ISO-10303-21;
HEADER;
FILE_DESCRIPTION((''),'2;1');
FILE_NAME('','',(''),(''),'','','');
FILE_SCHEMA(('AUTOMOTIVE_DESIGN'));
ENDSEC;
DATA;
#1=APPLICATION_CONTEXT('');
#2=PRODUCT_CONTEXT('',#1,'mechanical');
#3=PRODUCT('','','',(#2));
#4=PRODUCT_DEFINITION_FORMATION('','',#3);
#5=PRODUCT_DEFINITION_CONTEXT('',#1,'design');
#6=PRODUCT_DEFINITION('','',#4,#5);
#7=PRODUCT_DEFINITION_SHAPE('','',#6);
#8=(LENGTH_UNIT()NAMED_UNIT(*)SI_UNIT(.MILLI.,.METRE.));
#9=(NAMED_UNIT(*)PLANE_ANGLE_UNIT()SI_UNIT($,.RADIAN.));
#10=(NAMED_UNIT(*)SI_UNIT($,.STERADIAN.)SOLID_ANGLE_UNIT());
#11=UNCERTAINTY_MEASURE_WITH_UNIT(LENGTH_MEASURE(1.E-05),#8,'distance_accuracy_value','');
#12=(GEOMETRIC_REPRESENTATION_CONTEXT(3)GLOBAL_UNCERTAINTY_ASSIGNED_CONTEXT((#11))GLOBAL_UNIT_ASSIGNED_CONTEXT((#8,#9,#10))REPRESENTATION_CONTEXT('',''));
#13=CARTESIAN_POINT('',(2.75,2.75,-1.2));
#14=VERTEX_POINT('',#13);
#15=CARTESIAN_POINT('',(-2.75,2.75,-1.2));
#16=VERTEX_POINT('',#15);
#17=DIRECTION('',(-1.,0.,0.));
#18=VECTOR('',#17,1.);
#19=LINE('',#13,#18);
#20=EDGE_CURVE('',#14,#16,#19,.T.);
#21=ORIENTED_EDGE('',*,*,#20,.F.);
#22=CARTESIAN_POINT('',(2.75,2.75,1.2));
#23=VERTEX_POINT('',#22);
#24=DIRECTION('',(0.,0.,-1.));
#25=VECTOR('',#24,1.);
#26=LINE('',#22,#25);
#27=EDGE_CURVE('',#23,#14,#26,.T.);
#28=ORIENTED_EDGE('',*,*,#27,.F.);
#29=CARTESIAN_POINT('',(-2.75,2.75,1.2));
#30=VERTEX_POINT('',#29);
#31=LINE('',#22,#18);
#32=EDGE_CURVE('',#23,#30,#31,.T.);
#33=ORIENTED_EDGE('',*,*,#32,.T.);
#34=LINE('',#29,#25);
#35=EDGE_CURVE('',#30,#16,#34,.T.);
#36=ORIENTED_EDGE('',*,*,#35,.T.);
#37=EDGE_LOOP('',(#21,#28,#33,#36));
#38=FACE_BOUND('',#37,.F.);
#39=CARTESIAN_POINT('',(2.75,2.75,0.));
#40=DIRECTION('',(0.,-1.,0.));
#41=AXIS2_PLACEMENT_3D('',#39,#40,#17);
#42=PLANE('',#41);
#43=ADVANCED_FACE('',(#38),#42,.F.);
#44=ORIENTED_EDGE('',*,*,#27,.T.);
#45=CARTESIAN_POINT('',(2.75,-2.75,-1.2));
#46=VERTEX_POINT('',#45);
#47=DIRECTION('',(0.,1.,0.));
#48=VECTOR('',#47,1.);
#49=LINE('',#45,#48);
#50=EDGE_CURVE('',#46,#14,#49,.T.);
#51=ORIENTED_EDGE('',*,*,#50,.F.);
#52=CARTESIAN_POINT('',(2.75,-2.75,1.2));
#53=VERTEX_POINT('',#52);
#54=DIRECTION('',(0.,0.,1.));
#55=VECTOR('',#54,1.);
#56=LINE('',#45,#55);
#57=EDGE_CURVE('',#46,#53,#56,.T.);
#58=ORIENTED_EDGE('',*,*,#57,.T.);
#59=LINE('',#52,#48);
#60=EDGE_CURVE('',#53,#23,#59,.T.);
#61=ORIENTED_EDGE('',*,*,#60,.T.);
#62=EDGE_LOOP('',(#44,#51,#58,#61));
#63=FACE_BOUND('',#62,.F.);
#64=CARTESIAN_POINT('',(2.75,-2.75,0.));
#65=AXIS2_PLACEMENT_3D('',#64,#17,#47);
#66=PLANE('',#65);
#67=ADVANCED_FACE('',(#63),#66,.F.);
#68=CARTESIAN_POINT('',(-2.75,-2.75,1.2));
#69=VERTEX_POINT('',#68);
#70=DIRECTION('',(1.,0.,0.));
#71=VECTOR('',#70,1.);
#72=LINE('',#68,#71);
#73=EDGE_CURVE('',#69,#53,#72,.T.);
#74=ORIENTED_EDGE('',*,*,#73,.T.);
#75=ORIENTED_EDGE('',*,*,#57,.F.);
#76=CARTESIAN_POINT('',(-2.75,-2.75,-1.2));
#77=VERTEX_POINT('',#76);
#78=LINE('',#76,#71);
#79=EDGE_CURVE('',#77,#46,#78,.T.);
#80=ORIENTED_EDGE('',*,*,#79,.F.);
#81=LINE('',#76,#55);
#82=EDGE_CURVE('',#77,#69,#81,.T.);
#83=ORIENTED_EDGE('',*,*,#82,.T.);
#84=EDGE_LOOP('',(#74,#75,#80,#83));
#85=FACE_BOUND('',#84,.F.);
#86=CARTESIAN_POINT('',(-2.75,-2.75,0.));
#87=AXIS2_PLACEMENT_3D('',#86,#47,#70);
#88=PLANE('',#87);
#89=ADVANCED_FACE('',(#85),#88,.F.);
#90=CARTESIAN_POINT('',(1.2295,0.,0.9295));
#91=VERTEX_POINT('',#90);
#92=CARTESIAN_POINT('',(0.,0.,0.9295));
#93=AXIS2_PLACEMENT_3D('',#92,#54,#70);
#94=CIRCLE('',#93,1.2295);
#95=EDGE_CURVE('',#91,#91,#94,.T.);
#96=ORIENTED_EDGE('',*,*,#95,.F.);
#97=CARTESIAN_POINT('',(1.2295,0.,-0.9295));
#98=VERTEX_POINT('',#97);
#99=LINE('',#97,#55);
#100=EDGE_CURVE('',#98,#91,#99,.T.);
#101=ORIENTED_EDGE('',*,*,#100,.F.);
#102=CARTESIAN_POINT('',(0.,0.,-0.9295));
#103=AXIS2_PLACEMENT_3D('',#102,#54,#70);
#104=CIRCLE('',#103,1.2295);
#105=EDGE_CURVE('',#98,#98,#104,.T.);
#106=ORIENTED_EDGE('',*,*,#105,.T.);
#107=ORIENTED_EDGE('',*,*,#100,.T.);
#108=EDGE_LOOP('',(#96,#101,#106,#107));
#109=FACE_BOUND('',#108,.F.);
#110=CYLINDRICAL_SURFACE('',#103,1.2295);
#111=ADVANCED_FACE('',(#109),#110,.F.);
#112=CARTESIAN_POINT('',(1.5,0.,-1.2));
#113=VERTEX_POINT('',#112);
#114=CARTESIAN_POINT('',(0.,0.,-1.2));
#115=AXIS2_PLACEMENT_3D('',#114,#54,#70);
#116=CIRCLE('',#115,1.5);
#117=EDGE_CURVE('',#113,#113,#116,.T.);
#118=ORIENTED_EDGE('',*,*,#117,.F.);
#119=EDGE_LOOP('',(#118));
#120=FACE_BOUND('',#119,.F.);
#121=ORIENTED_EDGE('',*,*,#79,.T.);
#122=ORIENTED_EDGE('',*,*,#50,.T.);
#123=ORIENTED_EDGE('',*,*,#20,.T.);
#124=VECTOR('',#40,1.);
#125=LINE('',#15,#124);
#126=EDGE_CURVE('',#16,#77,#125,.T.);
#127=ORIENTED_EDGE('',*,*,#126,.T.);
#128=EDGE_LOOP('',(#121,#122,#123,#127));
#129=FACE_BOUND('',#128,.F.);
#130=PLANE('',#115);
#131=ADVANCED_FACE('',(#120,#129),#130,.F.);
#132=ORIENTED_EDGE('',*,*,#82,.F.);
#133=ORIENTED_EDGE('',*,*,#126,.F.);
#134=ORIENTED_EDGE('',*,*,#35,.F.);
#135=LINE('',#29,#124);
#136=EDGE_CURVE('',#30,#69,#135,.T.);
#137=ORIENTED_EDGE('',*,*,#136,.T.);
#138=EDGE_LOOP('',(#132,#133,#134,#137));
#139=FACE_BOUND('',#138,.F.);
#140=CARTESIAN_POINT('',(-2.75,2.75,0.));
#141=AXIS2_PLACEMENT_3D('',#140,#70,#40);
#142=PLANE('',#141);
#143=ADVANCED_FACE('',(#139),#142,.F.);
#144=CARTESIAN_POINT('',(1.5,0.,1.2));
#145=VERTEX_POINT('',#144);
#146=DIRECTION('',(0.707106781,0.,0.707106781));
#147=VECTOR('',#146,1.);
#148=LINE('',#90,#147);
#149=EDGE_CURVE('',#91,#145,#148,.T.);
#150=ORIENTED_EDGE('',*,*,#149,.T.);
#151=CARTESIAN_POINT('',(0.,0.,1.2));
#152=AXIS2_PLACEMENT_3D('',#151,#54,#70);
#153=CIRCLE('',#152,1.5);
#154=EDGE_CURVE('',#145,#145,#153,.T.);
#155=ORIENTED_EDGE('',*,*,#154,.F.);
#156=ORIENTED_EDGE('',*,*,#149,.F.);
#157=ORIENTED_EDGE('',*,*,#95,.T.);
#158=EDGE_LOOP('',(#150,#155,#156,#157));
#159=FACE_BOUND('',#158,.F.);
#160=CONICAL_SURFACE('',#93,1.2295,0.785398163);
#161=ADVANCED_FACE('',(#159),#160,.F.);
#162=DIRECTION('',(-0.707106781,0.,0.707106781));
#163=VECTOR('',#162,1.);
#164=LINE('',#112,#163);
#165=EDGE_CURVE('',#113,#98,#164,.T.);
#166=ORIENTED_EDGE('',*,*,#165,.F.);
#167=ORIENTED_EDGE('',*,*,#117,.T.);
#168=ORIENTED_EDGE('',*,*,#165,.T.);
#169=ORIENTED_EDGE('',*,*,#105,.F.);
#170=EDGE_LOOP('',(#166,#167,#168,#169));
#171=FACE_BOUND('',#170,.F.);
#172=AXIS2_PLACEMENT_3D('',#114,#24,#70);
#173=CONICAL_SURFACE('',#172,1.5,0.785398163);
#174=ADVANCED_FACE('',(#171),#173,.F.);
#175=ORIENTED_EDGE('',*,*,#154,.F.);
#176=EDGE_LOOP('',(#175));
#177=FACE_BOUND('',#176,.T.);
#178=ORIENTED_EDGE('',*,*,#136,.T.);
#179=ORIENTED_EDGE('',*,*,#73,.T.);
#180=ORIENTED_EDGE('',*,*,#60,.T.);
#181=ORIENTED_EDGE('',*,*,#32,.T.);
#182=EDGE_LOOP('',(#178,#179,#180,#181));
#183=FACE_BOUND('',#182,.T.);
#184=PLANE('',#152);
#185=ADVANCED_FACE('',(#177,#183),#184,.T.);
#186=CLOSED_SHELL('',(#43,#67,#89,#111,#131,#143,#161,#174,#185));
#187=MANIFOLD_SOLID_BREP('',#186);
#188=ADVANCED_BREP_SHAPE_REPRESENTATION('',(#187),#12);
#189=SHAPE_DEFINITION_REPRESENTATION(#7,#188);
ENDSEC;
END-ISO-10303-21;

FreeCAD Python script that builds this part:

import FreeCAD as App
import Part
import Sketcher
from FreeCAD import Vector

doc = App.newDocument("Part")
body = doc.addObject("PartDesign::Body", "Body")

# Sketch on XY plane
sketch1 = body.newObject("Sketcher::SketchObject", "Sketch")
sketch1.AttachmentSupport = (doc.getObject("XY_Plane"), [""])
sketch1.MapMode = "FlatFace"
sketch1.addGeometry([
    Part.LineSegment(Vector(-2.75, 2.75, 0), Vector(-2.75, -2.75, 0)),
    Part.LineSegment(Vector(-2.75, -2.75, 0), Vector(2.75, -2.75, 0)),
    Part.LineSegment(Vector(2.75, -2.75, 0), Vector(2.75, 2.75, 0)),
    Part.LineSegment(Vector(2.75, 2.75, 0), Vector(-2.75, 2.75, 0)),
], False)
sketch1.addConstraint([
    Sketcher.Constraint("Coincident", 0, 2, 1, 1),
    Sketcher.Constraint("Coincident", 1, 2, 2, 1),
    Sketcher.Constraint("Coincident", 2, 2, 3, 1),
    Sketcher.Constraint("Coincident", 3, 2, 0, 1),
    Sketcher.Constraint("Vertical", 0),
    Sketcher.Constraint("Horizontal", 1),
    Sketcher.Constraint("Vertical", 2),
    Sketcher.Constraint("Horizontal", 3),
    Sketcher.Constraint("Symmetric", 0, 2, 2, 2, -1, 1),
    Sketcher.Constraint("Equal", 3, 0),
    Sketcher.Constraint("DistanceX", 1, 1, 1, 2, 5.5),
])
pad1 = body.newObject("PartDesign::Pad", "Pad")
pad1.Profile = sketch1
pad1.Length = 2.4
pad1.Midplane = True

# Sketch on XZ plane
sketch2 = body.newObject("Sketcher::SketchObject", "Sketch001")
sketch2.AttachmentSupport = (doc.getObject("XZ_Plane"), [""])
sketch2.MapMode = "FlatFace"
sketch2.addGeometry([
    Part.LineSegment(Vector(0, -1.2, 0), Vector(0, 1.2, 0)),  # 0
    Part.LineSegment(Vector(0, 1.2, 0), Vector(1.5, 1.2, 0)),  # 1
    Part.LineSegment(Vector(1.5, 1.2, 0), Vector(1.2295, 0.9295, 0)),  # 2
    Part.LineSegment(Vector(1.2295, 0.9295, 0), Vector(1.2295, -0.9295, 0)),  # 3
    Part.LineSegment(Vector(1.2295, -0.9295, 0), Vector(1.5, -1.2, 0)),  # 4
    Part.LineSegment(Vector(1.5, -1.2, 0), Vector(0, -1.2, 0)),  # 5
], False)
sketch2.addConstraint([
    Sketcher.Constraint("Coincident", 0, 2, 1, 1),
    Sketcher.Constraint("Coincident", 1, 2, 2, 1),
    Sketcher.Constraint("Coincident", 2, 2, 3, 1),
    Sketcher.Constraint("Coincident", 3, 2, 4, 1),
    Sketcher.Constraint("Coincident", 4, 2, 5, 1),
    Sketcher.Constraint("Coincident", 5, 2, 0, 1),
    Sketcher.Constraint("Vertical", 0),
    Sketcher.Constraint("Horizontal", 1),
    Sketcher.Constraint("Vertical", 3),
    Sketcher.Constraint("Horizontal", 5),
    Sketcher.Constraint("Symmetric", 0, 2, 5, 2, -1, 1),
    Sketcher.Constraint("Perpendicular", 2, 4),
    Sketcher.Constraint("Vertical", 1, 2, 4, 2),
    Sketcher.Constraint("Equal", 2, 4),
    Sketcher.Constraint("DistanceX", 1, 1, 1, 2, 1.5),
    Sketcher.Constraint("DistanceY", 0, 1, 0, 2, 2.4),
    Sketcher.Constraint("DistanceY", 3, 2, 3, 1, 1.859),
])
groove = body.newObject("PartDesign::Groove", "Groove")
groove.Profile = sketch2
groove.ReferenceAxis = (sketch2, ["V_Axis"])
groove.Angle = 360

doc.recompute()
